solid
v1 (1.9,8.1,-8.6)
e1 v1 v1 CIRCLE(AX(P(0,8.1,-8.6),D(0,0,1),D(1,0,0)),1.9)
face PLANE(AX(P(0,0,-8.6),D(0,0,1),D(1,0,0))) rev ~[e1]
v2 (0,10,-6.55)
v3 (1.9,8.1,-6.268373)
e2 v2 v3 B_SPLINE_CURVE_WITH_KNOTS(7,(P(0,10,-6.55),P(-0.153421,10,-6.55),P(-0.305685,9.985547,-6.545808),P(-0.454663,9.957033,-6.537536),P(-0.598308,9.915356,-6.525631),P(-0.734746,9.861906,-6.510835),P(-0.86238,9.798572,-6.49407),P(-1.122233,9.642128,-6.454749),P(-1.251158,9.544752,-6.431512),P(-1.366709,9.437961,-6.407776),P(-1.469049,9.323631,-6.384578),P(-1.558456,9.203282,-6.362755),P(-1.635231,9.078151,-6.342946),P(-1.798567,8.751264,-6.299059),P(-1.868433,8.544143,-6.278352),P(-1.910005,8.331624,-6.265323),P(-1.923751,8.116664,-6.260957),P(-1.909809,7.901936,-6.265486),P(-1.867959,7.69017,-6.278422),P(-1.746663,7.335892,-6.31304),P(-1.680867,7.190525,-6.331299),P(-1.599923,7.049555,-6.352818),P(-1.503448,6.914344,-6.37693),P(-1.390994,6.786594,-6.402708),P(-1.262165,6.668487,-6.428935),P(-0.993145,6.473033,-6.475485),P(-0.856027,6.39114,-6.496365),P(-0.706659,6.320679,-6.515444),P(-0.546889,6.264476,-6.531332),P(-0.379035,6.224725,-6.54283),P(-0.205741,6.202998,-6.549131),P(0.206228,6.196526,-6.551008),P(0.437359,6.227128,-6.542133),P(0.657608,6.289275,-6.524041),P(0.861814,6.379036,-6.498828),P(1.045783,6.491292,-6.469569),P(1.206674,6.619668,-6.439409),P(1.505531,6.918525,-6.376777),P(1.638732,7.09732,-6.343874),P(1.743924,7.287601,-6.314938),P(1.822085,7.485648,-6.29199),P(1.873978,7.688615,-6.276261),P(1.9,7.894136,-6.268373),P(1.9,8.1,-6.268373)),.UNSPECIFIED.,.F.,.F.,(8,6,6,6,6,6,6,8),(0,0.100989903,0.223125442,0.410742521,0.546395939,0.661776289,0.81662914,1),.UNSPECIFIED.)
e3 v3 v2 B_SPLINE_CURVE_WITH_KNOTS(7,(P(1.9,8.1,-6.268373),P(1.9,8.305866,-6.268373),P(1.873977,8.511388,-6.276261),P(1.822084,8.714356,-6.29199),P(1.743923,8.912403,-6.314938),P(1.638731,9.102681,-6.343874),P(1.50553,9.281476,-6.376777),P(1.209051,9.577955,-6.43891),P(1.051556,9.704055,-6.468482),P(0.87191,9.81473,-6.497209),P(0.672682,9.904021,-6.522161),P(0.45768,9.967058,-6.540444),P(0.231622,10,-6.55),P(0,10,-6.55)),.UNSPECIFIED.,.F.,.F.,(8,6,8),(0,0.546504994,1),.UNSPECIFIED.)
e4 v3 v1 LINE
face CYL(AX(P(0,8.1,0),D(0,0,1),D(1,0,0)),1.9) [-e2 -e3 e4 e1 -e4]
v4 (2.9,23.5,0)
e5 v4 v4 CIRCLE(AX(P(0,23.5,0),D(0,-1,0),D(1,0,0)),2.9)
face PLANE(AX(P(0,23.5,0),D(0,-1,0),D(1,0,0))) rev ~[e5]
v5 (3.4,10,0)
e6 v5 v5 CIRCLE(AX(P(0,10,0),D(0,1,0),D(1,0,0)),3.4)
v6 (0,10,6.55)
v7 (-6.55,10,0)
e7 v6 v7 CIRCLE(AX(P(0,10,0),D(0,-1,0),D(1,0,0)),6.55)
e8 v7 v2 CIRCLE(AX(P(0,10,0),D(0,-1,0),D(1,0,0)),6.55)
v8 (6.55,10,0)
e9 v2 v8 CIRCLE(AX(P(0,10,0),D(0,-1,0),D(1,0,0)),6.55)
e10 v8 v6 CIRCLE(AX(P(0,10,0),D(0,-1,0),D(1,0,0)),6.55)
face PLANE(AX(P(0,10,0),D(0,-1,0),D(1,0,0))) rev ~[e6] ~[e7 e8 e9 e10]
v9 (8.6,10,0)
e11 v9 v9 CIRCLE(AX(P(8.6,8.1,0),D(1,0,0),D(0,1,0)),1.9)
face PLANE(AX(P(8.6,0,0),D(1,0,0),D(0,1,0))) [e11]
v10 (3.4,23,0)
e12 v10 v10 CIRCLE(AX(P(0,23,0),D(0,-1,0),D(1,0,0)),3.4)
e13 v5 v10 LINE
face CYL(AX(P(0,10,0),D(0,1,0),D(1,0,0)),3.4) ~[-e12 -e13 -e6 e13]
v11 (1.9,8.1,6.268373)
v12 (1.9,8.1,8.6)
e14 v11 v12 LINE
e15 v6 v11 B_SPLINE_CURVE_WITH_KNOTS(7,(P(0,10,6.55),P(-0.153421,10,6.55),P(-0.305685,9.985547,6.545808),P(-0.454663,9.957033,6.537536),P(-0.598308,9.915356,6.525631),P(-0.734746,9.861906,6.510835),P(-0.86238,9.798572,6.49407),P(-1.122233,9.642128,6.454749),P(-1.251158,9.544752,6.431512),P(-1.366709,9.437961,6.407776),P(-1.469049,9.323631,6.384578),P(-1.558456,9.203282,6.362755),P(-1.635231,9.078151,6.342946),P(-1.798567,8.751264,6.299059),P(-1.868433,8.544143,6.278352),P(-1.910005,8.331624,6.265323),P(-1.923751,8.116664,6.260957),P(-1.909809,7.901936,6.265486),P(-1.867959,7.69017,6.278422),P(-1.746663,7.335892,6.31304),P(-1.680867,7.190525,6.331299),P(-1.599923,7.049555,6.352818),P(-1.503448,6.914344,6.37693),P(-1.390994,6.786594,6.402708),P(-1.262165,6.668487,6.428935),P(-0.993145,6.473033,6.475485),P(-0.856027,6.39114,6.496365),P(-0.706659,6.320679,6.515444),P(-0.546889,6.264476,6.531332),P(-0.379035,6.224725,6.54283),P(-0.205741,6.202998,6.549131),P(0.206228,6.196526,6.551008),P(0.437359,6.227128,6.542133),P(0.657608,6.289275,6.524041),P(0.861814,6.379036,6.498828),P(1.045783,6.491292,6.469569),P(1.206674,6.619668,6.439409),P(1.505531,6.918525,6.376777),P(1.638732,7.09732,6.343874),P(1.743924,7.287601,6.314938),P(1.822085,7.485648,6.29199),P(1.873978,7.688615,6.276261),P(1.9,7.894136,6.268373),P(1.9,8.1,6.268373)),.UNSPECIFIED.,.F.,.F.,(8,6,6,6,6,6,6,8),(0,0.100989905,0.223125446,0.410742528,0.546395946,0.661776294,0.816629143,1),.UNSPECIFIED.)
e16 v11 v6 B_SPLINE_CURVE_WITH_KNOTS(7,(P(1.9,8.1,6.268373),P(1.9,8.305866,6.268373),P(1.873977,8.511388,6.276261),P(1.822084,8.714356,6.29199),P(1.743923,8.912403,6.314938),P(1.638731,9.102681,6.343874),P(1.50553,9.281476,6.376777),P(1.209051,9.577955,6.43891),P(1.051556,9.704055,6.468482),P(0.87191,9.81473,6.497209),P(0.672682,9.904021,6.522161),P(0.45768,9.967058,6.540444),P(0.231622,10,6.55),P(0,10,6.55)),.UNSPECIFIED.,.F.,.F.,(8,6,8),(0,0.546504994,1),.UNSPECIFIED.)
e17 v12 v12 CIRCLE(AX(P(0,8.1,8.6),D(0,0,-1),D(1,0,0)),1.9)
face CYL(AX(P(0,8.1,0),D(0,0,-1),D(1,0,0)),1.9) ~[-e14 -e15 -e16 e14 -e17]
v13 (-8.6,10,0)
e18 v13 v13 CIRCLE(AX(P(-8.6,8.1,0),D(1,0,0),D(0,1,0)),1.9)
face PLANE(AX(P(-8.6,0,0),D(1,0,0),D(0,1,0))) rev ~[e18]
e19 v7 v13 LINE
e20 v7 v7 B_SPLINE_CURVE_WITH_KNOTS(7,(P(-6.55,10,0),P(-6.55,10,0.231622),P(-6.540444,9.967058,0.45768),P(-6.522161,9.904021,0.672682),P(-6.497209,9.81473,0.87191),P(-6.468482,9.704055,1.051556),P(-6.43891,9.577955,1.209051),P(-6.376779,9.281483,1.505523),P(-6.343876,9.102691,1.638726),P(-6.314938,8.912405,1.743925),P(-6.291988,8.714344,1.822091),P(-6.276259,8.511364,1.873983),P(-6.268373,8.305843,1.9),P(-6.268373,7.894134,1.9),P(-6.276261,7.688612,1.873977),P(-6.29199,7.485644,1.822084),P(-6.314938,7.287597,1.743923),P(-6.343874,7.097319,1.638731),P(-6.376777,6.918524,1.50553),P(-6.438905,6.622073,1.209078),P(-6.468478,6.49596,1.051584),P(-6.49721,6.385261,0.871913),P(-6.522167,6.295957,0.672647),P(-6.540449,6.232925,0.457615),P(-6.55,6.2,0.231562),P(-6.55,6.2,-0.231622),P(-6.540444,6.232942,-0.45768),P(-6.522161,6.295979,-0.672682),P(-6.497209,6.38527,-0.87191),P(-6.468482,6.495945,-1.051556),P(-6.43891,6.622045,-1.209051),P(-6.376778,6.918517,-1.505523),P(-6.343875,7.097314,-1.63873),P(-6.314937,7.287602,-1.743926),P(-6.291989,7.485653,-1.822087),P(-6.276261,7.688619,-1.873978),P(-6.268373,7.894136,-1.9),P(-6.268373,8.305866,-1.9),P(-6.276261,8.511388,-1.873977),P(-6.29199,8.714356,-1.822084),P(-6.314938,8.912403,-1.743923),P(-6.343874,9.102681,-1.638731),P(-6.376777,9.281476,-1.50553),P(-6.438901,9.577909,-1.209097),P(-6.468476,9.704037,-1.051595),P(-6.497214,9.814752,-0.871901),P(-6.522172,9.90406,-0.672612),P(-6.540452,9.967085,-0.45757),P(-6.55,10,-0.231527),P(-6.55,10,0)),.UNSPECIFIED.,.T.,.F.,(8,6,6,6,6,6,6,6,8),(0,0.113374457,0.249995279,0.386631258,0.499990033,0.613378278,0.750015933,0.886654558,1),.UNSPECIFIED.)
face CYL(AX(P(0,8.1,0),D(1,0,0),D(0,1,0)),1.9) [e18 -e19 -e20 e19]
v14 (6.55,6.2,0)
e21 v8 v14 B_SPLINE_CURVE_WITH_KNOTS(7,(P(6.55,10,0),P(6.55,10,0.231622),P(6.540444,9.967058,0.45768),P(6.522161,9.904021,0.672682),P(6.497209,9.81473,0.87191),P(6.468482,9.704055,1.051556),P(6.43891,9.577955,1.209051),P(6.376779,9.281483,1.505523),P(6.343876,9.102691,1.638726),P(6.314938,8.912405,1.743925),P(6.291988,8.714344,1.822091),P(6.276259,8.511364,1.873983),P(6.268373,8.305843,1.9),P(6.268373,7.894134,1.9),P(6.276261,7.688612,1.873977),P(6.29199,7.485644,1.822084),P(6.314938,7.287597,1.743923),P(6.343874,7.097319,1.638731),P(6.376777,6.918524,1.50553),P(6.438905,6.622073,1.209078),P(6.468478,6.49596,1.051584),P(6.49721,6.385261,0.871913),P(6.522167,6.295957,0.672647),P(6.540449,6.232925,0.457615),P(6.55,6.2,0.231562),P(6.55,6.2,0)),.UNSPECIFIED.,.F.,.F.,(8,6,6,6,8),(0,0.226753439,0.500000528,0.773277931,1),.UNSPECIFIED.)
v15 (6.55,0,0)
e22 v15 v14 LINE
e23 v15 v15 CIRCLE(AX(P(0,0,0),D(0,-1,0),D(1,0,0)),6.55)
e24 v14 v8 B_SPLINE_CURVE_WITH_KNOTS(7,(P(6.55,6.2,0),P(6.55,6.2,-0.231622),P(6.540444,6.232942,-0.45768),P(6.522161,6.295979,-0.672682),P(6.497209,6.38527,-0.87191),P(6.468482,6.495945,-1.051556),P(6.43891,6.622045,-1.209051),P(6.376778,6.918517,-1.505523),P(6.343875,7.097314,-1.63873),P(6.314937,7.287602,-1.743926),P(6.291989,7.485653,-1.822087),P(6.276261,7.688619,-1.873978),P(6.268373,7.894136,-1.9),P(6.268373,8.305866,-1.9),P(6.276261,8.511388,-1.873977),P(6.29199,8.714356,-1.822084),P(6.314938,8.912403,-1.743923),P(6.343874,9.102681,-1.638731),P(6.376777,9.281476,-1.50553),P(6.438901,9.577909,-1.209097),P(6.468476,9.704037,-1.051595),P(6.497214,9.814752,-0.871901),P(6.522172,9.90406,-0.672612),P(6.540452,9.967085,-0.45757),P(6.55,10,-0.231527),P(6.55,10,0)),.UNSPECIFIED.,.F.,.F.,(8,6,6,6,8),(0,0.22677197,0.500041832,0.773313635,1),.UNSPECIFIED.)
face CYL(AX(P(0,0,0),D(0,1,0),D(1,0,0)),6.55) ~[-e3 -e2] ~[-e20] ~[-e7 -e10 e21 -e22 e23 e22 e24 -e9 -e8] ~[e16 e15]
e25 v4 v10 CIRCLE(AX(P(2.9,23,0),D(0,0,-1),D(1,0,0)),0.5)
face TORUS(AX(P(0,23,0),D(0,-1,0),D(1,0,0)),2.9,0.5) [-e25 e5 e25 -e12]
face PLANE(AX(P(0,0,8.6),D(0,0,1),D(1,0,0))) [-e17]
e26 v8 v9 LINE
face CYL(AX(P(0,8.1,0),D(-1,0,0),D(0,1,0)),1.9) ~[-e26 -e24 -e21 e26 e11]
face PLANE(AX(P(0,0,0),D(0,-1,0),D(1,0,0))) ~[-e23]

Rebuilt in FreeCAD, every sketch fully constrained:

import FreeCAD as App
import Part
import Sketcher


def edges_at(feature, points):
    """Names of the edges that pass closest to the given points."""
    edges = feature.Shape.Edges
    near = lambda p: min(range(len(edges)), key=lambda i: edges[i].distToShape(Part.Vertex(*p))[0])
    return sorted({f"Edge{near(p) + 1}" for p in points})


def add_polygon(sketch, points):
    """Adds a closed chain of lines whose ends are joined by coincident constraints."""
    first, n = sketch.GeometryCount, len(points)
    for a, b in zip(points, points[1:] + points[:1]):
        sketch.addGeometry(Part.LineSegment(App.Vector(*a, 0), App.Vector(*b, 0)), False)
    for i in range(n):
        sketch.addConstraint(Sketcher.Constraint("Coincident", first + i, 2, first + (i + 1) % n, 1))

doc = App.newDocument("Part")
body = doc.addObject("PartDesign::Body", "Body")

# Sketch on XY plane
sketch1 = body.newObject("Sketcher::SketchObject", "Sketch")
sketch1.AttachmentSupport = (doc.getObject("XY_Plane"), [""])
sketch1.MapMode = "FlatFace"
add_polygon(sketch1, [(0, 23.5), (0, 0), (6.5, 0), (6.5, 10), (3.4, 10), (3.4, 23.5)])  # lines 0-5
sketch1.addConstraint([
    Sketcher.Constraint("Vertical", 0),
    Sketcher.Constraint("Horizontal", 1),
    Sketcher.Constraint("Vertical", 2),
    Sketcher.Constraint("Horizontal", 3),
    Sketcher.Constraint("Vertical", 4),
    Sketcher.Constraint("Horizontal", 5),
    Sketcher.Constraint("Coincident", 0, 2, -1, 1),
    Sketcher.Constraint("DistanceY", 2, 1, 2, 2, 10.0),
    Sketcher.Constraint("DistanceX", 5, 2, 5, 1, 3.4),
    Sketcher.Constraint("DistanceY", 4, 1, 4, 2, 13.5),
    Sketcher.Constraint("DistanceX", 1, 1, 1, 2, 6.55),
])
revolution = body.newObject("PartDesign::Revolution", "Revolution")
revolution.Profile = sketch1
revolution.ReferenceAxis = (sketch1, ["V_Axis"])
revolution.Angle = 360

# Sketch on XY plane
sketch2 = body.newObject("Sketcher::SketchObject", "Sketch001")
sketch2.AttachmentSupport = (doc.getObject("XY_Plane"), [""])
sketch2.MapMode = "FlatFace"
sketch2.addGeometry(Part.Circle(App.Vector(0, 8.1, 0), App.Vector(0, 0, 1), 1.9), False)
sketch2.addConstraint([
    Sketcher.Constraint("PointOnObject", 0, 3, -2),
    Sketcher.Constraint("Diameter", 0, 3.8),
    Sketcher.Constraint("DistanceY", -1, 1, 0, 3, 8.1),
])
pad1 = body.newObject("PartDesign::Pad", "Pad")
pad1.Profile = sketch2
pad1.Length = 17.2
pad1.Midplane = True

# Sketch on YZ plane
sketch3 = body.newObject("Sketcher::SketchObject", "Sketch002")
sketch3.AttachmentSupport = (doc.getObject("YZ_Plane"), [""])
sketch3.MapMode = "FlatFace"
sketch3.addGeometry(Part.Circle(App.Vector(8.1, 0, 0), App.Vector(0, 0, 1), 1.9), False)
sketch3.addConstraint([
    Sketcher.Constraint("PointOnObject", 0, 3, -1),
    Sketcher.Constraint("Diameter", 0, 3.8),
    Sketcher.Constraint("DistanceX", -1, 1, 0, 3, 8.1),
])
pad2 = body.newObject("PartDesign::Pad", "Pad001")
pad2.Profile = sketch3
pad2.Length = 17.2
pad2.Midplane = True
doc.recompute()

fillet = body.newObject("PartDesign::Fillet", "Fillet")
fillet.Base = (pad2, edges_at(pad2, [(-3.4, 23.5, 0)]))
fillet.Radius = 0.5

doc.recompute()
